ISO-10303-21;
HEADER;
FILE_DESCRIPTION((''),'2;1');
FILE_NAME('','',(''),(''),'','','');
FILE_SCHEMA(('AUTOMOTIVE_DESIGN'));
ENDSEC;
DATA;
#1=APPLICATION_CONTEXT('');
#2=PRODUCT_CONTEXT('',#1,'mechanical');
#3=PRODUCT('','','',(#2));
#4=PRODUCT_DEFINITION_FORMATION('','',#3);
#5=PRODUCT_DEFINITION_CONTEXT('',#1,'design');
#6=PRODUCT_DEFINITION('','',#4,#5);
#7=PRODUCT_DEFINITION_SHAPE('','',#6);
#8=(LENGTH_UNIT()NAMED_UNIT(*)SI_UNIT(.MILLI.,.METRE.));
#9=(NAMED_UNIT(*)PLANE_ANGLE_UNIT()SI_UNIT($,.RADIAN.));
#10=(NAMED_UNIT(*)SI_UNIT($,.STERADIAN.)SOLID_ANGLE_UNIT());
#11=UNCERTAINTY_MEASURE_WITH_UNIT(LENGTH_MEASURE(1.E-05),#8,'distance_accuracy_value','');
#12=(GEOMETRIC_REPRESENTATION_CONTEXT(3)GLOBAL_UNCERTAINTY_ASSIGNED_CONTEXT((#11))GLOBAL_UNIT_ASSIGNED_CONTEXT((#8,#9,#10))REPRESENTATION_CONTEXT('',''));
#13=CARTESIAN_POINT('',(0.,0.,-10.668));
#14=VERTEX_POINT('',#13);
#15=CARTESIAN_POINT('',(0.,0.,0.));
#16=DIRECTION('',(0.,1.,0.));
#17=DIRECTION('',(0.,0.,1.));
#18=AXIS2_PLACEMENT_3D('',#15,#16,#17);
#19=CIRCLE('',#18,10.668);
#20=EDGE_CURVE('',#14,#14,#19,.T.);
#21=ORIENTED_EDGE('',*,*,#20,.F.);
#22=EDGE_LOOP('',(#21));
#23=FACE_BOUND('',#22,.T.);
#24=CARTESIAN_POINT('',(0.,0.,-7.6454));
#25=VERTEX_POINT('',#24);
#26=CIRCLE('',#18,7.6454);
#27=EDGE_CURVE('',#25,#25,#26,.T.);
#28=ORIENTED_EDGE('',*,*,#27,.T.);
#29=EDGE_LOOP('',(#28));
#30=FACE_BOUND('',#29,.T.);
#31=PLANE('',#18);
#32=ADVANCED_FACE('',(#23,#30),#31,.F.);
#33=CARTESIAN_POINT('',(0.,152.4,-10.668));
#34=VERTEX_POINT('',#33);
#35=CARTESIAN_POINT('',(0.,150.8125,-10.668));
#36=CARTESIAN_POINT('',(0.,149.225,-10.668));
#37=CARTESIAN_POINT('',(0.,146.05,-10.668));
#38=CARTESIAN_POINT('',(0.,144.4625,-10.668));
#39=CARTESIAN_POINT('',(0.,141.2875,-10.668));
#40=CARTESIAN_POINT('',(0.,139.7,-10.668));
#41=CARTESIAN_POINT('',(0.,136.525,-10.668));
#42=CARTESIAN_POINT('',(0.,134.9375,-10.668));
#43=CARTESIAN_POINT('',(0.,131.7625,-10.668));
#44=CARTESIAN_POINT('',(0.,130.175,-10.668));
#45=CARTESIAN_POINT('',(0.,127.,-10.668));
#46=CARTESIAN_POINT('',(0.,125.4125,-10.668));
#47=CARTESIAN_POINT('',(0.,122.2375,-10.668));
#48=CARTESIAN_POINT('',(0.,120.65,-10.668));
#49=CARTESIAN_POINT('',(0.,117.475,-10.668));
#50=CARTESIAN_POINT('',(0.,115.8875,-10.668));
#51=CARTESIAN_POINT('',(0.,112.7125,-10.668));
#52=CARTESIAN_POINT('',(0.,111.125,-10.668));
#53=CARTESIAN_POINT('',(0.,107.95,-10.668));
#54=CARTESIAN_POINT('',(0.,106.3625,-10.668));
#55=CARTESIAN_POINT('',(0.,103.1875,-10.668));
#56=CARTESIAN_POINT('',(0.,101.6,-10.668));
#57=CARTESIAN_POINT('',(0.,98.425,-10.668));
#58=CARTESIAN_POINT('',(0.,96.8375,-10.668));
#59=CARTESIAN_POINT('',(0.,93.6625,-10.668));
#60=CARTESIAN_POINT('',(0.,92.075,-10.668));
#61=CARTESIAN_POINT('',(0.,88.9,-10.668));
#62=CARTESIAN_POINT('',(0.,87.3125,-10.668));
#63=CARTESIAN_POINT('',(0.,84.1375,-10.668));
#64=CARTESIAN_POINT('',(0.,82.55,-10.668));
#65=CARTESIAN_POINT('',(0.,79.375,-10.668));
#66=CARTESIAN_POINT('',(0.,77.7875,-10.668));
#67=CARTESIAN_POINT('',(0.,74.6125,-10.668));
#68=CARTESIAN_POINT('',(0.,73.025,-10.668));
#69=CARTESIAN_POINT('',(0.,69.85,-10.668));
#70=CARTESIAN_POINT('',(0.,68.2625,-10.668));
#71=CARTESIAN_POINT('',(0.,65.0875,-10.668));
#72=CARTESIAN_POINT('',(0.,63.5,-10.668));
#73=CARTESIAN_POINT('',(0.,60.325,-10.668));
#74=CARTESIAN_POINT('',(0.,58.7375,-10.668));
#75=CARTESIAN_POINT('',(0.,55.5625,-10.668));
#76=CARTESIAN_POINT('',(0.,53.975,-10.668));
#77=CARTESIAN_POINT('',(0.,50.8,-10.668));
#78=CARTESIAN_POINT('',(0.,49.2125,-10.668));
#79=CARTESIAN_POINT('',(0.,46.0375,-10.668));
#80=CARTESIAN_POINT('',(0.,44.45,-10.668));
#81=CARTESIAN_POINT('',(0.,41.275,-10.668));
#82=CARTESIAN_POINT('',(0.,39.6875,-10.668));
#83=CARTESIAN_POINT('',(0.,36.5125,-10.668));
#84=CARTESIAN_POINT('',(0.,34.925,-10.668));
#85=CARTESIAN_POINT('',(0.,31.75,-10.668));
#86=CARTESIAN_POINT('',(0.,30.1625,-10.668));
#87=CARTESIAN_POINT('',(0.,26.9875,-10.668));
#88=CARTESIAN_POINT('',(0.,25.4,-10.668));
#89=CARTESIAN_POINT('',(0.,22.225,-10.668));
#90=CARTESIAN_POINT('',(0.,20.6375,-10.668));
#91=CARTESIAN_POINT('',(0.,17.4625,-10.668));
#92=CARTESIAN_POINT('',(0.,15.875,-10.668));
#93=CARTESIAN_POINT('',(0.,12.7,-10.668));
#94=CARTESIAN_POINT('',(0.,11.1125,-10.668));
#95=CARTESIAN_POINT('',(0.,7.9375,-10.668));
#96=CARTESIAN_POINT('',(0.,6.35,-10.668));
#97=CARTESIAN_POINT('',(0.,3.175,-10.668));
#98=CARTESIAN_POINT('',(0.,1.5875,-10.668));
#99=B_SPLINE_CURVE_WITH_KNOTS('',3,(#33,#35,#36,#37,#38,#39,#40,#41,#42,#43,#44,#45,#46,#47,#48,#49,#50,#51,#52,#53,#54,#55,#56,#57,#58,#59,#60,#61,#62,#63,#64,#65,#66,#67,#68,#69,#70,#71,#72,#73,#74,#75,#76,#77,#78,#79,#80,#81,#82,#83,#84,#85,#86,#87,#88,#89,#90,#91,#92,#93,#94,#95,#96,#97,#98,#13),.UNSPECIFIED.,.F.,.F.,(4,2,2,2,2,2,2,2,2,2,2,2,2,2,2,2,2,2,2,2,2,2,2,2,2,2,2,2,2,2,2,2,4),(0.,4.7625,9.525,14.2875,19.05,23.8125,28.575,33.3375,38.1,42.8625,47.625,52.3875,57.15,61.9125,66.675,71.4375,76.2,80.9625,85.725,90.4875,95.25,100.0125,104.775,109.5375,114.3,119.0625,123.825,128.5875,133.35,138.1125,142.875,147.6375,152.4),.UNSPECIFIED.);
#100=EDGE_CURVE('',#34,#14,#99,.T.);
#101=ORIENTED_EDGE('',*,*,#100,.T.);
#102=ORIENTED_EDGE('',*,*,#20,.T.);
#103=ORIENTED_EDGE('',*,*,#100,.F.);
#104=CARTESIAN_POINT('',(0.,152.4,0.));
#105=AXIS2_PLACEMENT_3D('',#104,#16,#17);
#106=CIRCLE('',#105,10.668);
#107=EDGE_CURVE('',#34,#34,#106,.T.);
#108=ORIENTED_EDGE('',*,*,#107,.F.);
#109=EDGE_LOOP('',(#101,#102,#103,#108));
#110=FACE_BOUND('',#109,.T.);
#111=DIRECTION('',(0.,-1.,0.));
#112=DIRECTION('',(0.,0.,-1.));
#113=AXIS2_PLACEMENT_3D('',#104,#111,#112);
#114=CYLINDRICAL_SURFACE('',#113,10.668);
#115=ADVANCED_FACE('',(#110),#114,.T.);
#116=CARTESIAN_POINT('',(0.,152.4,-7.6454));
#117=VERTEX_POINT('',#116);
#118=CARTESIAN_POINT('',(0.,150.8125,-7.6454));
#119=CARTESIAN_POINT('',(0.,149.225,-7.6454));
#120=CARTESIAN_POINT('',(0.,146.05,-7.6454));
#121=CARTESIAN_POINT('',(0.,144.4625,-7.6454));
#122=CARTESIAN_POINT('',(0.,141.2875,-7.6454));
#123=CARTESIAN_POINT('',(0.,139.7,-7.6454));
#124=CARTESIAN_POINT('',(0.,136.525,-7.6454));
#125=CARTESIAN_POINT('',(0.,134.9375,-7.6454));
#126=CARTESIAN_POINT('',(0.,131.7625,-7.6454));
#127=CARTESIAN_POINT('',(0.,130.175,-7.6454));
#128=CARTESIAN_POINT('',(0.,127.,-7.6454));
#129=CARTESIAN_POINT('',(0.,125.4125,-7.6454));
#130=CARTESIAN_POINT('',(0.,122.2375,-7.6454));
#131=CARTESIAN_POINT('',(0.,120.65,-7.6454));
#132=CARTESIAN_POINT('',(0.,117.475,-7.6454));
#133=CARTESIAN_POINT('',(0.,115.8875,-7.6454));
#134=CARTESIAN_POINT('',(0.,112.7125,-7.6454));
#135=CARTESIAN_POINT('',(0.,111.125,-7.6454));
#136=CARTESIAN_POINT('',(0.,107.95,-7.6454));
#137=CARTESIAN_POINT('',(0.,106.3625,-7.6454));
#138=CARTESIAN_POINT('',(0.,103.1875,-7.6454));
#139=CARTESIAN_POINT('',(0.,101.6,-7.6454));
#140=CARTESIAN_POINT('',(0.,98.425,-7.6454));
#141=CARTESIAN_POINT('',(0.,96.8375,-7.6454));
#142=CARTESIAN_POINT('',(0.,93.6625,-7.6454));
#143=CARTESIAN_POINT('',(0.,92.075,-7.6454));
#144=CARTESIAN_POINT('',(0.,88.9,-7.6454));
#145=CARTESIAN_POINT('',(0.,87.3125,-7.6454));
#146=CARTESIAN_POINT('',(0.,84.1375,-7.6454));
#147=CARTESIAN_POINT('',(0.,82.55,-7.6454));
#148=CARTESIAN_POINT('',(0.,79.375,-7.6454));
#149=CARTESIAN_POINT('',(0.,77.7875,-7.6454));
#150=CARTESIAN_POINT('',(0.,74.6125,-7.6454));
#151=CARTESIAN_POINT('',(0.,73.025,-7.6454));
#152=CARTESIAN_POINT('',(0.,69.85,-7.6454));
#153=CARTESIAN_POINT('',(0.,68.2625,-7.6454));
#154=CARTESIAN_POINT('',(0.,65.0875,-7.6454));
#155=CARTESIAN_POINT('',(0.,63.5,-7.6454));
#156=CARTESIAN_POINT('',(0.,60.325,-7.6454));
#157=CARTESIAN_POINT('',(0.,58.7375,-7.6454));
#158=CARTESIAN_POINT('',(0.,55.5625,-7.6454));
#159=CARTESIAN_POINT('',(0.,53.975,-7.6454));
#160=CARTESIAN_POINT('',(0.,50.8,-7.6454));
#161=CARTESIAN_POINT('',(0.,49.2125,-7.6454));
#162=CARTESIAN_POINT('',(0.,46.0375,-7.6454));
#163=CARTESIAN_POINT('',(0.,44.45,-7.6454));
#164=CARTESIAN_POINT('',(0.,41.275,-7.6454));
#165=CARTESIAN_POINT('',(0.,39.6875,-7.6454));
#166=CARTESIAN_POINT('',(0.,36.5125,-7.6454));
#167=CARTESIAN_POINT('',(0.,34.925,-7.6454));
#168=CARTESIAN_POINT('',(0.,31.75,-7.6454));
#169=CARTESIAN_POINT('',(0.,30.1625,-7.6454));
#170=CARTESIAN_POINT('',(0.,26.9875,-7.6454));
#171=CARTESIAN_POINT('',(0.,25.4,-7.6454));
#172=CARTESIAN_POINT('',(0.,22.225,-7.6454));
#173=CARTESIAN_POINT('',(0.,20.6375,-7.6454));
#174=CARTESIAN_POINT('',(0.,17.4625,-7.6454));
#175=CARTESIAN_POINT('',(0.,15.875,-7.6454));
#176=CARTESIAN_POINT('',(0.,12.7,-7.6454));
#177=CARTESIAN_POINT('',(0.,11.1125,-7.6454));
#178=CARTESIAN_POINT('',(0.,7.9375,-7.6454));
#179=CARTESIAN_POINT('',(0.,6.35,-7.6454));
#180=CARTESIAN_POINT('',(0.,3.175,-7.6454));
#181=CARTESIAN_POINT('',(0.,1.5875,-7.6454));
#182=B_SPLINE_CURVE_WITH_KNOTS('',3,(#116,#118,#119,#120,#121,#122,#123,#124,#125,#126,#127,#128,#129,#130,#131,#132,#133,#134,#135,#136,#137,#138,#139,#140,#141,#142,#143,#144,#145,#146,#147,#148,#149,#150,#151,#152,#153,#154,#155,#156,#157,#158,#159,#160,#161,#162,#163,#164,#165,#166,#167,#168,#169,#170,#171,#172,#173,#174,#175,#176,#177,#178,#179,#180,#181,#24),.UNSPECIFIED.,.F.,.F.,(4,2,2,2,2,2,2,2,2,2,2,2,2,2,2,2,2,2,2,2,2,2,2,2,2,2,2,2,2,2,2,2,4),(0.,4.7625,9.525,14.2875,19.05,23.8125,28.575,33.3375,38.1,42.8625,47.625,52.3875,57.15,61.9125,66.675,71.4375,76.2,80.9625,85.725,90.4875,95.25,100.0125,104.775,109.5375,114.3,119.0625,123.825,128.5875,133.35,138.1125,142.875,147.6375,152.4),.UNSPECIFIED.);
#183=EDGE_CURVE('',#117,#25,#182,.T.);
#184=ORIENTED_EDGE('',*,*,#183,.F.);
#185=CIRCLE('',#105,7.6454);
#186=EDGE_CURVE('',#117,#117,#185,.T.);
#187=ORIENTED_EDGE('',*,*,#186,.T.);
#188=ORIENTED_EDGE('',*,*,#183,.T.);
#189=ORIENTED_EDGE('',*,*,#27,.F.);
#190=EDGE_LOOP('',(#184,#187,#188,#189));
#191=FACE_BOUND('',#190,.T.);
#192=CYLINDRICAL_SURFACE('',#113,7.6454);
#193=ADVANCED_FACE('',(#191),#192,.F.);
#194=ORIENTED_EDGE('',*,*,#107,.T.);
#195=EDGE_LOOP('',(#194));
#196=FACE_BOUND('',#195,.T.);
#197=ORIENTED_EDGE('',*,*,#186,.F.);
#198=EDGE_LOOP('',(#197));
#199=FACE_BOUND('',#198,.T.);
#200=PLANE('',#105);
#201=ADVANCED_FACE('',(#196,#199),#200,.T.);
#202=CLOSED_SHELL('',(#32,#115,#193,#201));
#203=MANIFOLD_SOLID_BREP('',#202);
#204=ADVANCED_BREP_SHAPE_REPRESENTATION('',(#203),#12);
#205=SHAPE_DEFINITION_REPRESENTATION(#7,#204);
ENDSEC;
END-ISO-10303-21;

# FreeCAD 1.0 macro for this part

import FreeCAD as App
import Part
import Sketcher
Q = App.Units.Quantity

doc = App.newDocument("Part")
body = doc.addObject("PartDesign::Body", "Body")

# Sketch on XZ plane
sketch1 = body.newObject("Sketcher::SketchObject", "Sketch")
sketch1.AttachmentSupport = (doc.getObject("XZ_Plane"), [""])
sketch1.MapMode = "FlatFace"
sketch1.addGeometry([
    Part.Circle(App.Vector(0, 0, 0), App.Vector(0, 0, 1), 11),
    Part.Circle(App.Vector(0, 0, 0), App.Vector(0, 0, 1), 8),
], False)
sketch1.addConstraint([
    Sketcher.Constraint("Coincident", 0, 3, -1, 1),
    Sketcher.Constraint("Coincident", 1, 3, -1, 1),
    Sketcher.Constraint("Diameter", 0, Q("0.84 in")),
    Sketcher.Constraint("Diameter", 1, Q("0.602 in")),
])
pad1 = body.newObject("PartDesign::Pad", "Pad")
pad1.Profile = sketch1
pad1.Length = Q("6 in")
pad1.Reversed = True

doc.recompute()
